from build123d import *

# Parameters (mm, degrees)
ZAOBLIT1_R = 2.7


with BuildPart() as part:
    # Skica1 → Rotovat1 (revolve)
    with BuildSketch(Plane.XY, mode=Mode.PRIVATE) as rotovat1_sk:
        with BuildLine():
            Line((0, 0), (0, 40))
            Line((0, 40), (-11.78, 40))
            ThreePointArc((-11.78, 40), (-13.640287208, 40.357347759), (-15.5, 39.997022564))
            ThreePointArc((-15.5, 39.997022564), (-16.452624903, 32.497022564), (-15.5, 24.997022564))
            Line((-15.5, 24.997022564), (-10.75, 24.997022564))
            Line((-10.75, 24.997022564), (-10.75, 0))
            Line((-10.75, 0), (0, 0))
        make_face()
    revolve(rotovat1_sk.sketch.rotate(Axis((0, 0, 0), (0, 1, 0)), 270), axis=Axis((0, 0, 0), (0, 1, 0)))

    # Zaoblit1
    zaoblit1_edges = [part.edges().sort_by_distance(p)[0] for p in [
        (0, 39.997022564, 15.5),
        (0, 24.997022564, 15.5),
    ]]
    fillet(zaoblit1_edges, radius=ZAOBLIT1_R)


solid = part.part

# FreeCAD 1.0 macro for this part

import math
import FreeCAD as App
import Part
import Sketcher

V = App.Vector


def edges_at(feature, points):
    """Names of the edges that pass closest to the given points."""
    edges = feature.Shape.Edges
    near = lambda p: min(range(len(edges)), key=lambda i: edges[i].distToShape(Part.Vertex(*p))[0])
    return sorted({f"Edge{near(p) + 1}" for p in points})

doc = App.newDocument("Part")
params = doc.addObject("Spreadsheet::Sheet", "Params")
for row, (alias, value) in enumerate([
    ("sketch1_radius", "5 mm"),
    ("sketch1_radius2", "30 mm"),
    ("sketch1_height", "40 mm"),
    ("sketch1_width", "11.78 mm"),
    ("sketch1_width2", "4.75 mm"),
    ("revolution_angle", "360 deg"),
    ("fillet_radius", "2.7 mm"),
], start=1):
    params.set(f"A{row}", alias)
    params.set(f"B{row}", "=" + value)
    params.setAlias(f"B{row}", alias)

body = doc.addObject("PartDesign::Body", "Body")

sketch1 = doc.addObject("Sketcher::SketchObject", "Sketch")
body.addObject(sketch1)
sketch1.AttachmentSupport = (doc.XY_Plane, [""])
sketch1.MapMode = "FlatFace"
sketch1.addGeometry([
    Part.LineSegment(V(0, 0, 0), V(0, 40, 0)),
    Part.LineSegment(V(0, 40, 0), V(-11.78, 40, 0)),
    Part.ArcOfCircle(Part.Circle(V(-13.636285, 35.357349, 0), V(0, 0, 1), 5), math.radians(68.206836), math.radians(111.884882)),
    Part.ArcOfCircle(Part.Circle(V(13.547375, 32.497023, 0), V(0, 0, 1), 30), math.radians(165.522488), math.radians(194.477512)),
    Part.LineSegment(V(-15.5, 24.997023, 0), V(-10.75, 24.997023, 0)),
    Part.LineSegment(V(-10.75, 24.997023, 0), V(-10.75, 0, 0)),
    Part.LineSegment(V(-10.75, 0, 0), V(0, 0, 0)),
], False)
sketch1.addConstraint([
    Sketcher.Constraint("Coincident", 0, 2, 1, 1),
    Sketcher.Constraint("Coincident", 1, 2, 2, 1),
    Sketcher.Constraint("Coincident", 2, 2, 3, 1),
    Sketcher.Constraint("Coincident", 3, 2, 4, 1),
    Sketcher.Constraint("Coincident", 4, 2, 5, 1),
    Sketcher.Constraint("Coincident", 5, 2, 6, 1),
    Sketcher.Constraint("Coincident", 6, 2, 0, 1),
    Sketcher.Constraint("Vertical", 0),
    Sketcher.Constraint("Horizontal", 1),
    Sketcher.Constraint("Horizontal", 4),
    Sketcher.Constraint("Vertical", 5),
    Sketcher.Constraint("Horizontal", 6),
    Sketcher.Constraint("Coincident", 6, 2, -1, 1),
    Sketcher.Constraint("Vertical", 2, 2, 3, 2),
    Sketcher.Constraint("Radius", 2, 5.0),
    Sketcher.Constraint("Radius", 3, 30.0),
    Sketcher.Constraint("DistanceY", 0, 1, 0, 2, 40.0),
    Sketcher.Constraint("DistanceY", 3, 2, 2, 2, 15.0),
    Sketcher.Constraint("DistanceX", 1, 2, 1, 1, 11.78),
    Sketcher.Constraint("DistanceX", 4, 1, 4, 2, 4.75),
    Sketcher.Constraint("DistanceX", 6, 1, 6, 2, 10.75),
    Sketcher.Constraint("DistanceY", 5, 2, 5, 1, 24.997023),
])
sketch1.setExpression("Constraints[14]", "Params.sketch1_radius")
sketch1.setExpression("Constraints[15]", "Params.sketch1_radius2")
sketch1.setExpression("Constraints[16]", "Params.sketch1_height")
sketch1.setExpression("Constraints[18]", "Params.sketch1_width")
sketch1.setExpression("Constraints[19]", "Params.sketch1_width2")
revolution = doc.addObject("PartDesign::Revolution", "Revolution")
body.addObject(revolution)
revolution.Profile = sketch1
revolution.ReferenceAxis = (sketch1, ["V_Axis"])
revolution.setExpression("Angle", "Params.revolution_angle")
doc.recompute()

fillet = doc.addObject("PartDesign::Fillet", "Fillet")
body.addObject(fillet)
fillet.Base = (revolution, edges_at(revolution, [(0, 39.997, 15.5), (0, 24.997, 15.5)]))
fillet.setExpression("Radius", "Params.fillet_radius")

doc.recompute()
